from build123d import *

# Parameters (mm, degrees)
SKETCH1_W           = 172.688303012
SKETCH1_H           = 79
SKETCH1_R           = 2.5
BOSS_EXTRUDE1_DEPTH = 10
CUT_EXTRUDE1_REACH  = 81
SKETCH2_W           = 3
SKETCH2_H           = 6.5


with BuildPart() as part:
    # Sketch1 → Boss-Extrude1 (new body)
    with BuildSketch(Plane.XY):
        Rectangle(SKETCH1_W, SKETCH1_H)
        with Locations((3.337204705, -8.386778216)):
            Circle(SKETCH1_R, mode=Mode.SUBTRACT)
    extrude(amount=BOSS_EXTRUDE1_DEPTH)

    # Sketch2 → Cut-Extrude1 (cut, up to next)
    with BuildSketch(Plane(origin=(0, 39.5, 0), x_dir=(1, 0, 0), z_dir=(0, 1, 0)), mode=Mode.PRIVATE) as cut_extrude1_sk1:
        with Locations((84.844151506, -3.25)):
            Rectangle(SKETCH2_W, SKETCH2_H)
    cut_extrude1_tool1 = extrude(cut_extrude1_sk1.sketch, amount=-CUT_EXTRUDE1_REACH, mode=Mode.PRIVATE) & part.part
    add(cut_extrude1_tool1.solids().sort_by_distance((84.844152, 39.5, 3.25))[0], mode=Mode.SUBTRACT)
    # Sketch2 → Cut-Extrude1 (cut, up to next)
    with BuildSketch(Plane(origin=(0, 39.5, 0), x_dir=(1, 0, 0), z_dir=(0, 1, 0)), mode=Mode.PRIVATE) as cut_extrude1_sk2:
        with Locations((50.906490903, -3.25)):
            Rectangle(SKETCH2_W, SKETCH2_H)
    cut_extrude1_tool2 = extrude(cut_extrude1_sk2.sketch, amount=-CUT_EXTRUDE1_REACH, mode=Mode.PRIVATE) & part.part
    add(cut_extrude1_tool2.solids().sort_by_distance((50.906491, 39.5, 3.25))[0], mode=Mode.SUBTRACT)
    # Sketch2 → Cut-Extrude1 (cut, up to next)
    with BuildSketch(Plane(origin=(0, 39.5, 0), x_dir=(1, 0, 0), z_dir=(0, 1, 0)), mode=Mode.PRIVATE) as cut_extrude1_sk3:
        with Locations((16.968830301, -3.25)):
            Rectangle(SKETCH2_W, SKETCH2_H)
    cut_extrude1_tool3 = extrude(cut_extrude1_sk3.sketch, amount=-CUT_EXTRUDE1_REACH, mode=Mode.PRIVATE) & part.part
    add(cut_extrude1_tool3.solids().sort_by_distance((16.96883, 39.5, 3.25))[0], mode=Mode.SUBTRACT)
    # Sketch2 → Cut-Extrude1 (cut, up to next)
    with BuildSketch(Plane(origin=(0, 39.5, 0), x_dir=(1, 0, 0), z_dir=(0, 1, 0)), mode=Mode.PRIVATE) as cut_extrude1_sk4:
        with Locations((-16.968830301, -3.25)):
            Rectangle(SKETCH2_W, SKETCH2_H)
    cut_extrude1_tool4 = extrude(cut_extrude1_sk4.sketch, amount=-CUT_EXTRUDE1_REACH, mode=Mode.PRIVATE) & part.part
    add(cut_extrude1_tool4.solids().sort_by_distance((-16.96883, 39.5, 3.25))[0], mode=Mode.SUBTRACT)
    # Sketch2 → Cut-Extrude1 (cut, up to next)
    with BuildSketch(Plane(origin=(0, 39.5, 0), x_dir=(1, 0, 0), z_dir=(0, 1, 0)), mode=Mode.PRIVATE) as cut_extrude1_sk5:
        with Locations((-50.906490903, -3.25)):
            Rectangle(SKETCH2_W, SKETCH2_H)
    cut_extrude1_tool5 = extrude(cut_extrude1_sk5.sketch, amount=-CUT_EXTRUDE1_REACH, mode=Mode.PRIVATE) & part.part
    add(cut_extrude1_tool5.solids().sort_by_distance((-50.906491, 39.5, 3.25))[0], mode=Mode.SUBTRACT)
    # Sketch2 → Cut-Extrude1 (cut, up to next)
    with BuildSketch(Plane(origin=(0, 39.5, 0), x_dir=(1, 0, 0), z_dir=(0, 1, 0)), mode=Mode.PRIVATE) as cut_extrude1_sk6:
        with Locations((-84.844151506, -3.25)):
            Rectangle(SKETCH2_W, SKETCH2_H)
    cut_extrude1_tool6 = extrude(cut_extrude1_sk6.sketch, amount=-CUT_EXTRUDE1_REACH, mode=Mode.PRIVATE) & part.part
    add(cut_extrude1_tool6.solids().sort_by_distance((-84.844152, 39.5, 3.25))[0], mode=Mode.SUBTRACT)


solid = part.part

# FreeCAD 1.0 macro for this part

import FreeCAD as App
import Part
import Sketcher

V = App.Vector
Q = App.Units.Quantity

doc = App.newDocument("Part")
params = doc.addObject("Spreadsheet::Sheet", "Params")
for row, (alias, value) in enumerate([
    ("sketch1_diameter", "5 mm"),
    ("sketch1_height", "79 mm"),
    ("pad1_length", "10 mm"),
    ("sketch2_width", "3 mm"),
    ("sketch2_height", "6.5 mm"),
    ("sketch3_width", "3 mm"),
    ("sketch3_height", "6.5 mm"),
    ("sketch4_width", "3 mm"),
    ("sketch4_height", "6.5 mm"),
    ("sketch5_width", "3 mm"),
    ("sketch5_height", "6.5 mm"),
    ("sketch6_width", "3 mm"),
    ("sketch6_height", "6.5 mm"),
    ("sketch7_width", "3 mm"),
    ("sketch7_height", "6.5 mm"),
], start=1):
    params.set(f"A{row}", alias)
    params.set(f"B{row}", "=" + value)
    params.setAlias(f"B{row}", alias)

body = doc.addObject("PartDesign::Body", "Body")

# Sketch on XY plane
sketch1 = doc.addObject("Sketcher::SketchObject", "Sketch")
body.addObject(sketch1)
sketch1.AttachmentSupport = (doc.XY_Plane, [""])
sketch1.MapMode = "FlatFace"
sketch1.addGeometry([
    Part.LineSegment(V(-86.3, 39.5, 0), V(-86.3, -39.5, 0)),  # 0
    Part.LineSegment(V(-86.3, -39.5, 0), V(86.3, -39.5, 0)),  # 1
    Part.LineSegment(V(86.3, -39.5, 0), V(86.3, 39.5, 0)),  # 2
    Part.LineSegment(V(86.3, 39.5, 0), V(-86.3, 39.5, 0)),  # 3
    Part.Circle(V(3.3, -8.4, 0), V(0, 0, 1), 2.5),  # 4
], False)
sketch1.addConstraint([
    Sketcher.Constraint("Coincident", 0, 2, 1, 1),
    Sketcher.Constraint("Coincident", 1, 2, 2, 1),
    Sketcher.Constraint("Coincident", 2, 2, 3, 1),
    Sketcher.Constraint("Coincident", 3, 2, 0, 1),
    Sketcher.Constraint("Vertical", 0),
    Sketcher.Constraint("Horizontal", 1),
    Sketcher.Constraint("Vertical", 2),
    Sketcher.Constraint("Horizontal", 3),
    Sketcher.Constraint("Symmetric", 0, 2, 2, 2, -1, 1),
    Sketcher.Constraint("Diameter", 4, Q("5 mm")),
    Sketcher.Constraint("DistanceY", 0, 2, 0, 1, Q("79 mm")),
    Sketcher.Constraint("DistanceX", 1, 1, 1, 2, Q("172.688303 mm")),
    Sketcher.Constraint("DistanceY", 4, 3, -1, 1, Q("8.386778 mm")),
    Sketcher.Constraint("DistanceX", -1, 1, 4, 3, Q("3.337205 mm")),
])
sketch1.setExpression("Constraints[9]", "Params.sketch1_diameter")
sketch1.setExpression("Constraints[10]", "Params.sketch1_height")
pad1 = doc.addObject("PartDesign::Pad", "Pad")
body.addObject(pad1)
pad1.Profile = sketch1
pad1.setExpression("Length", "Params.pad1_length")

# Sketch on XZ plane
sketch2 = doc.addObject("Sketcher::SketchObject", "Sketch001")
body.addObject(sketch2)
sketch2.AttachmentSupport = (doc.XZ_Plane, [""])
sketch2.MapMode = "FlatFace"
sketch2.AttachmentOffset = App.Placement(V(0, 0, -39.5), App.Rotation())
sketch2.addGeometry([
    Part.LineSegment(V(83.3, 0, 0), V(83.3, 6.5, 0)),
    Part.LineSegment(V(83.3, 6.5, 0), V(86.3, 6.5, 0)),
    Part.LineSegment(V(86.3, 6.5, 0), V(86.3, 0, 0)),
    Part.LineSegment(V(86.3, 0, 0), V(83.3, 0, 0)),
], False)
sketch2.addConstraint([
    Sketcher.Constraint("Coincident", 0, 2, 1, 1),
    Sketcher.Constraint("Coincident", 1, 2, 2, 1),
    Sketcher.Constraint("Coincident", 2, 2, 3, 1),
    Sketcher.Constraint("Coincident", 3, 2, 0, 1),
    Sketcher.Constraint("Vertical", 0),
    Sketcher.Constraint("Horizontal", 1),
    Sketcher.Constraint("Vertical", 2),
    Sketcher.Constraint("Horizontal", 3),
    Sketcher.Constraint("PointOnObject", 2, 2, -1),
    Sketcher.Constraint("DistanceX", 1, 1, 1, 2, Q("3 mm")),
    Sketcher.Constraint("DistanceY", 0, 1, 0, 2, Q("6.5 mm")),
    Sketcher.Constraint("DistanceX", -1, 1, 0, 2, Q("83.344152 mm")),
])
sketch2.setExpression("Constraints[9]", "Params.sketch2_width")
sketch2.setExpression("Constraints[10]", "Params.sketch2_height")
pocket1 = doc.addObject("PartDesign::Pocket", "Pocket")
body.addObject(pocket1)
pocket1.Profile = sketch2
pocket1.Type = "UpToFirst"
pocket1.Reversed = True

# Sketch on XZ plane
sketch3 = doc.addObject("Sketcher::SketchObject", "Sketch002")
body.addObject(sketch3)
sketch3.AttachmentSupport = (doc.XZ_Plane, [""])
sketch3.MapMode = "FlatFace"
sketch3.AttachmentOffset = App.Placement(V(0, 0, -39.5), App.Rotation())
sketch3.addGeometry([
    Part.LineSegment(V(49.4, 0, 0), V(49.4, 6.5, 0)),
    Part.LineSegment(V(49.4, 6.5, 0), V(52.4, 6.5, 0)),
    Part.LineSegment(V(52.4, 6.5, 0), V(52.4, 0, 0)),
    Part.LineSegment(V(52.4, 0, 0), V(49.4, 0, 0)),
], False)
sketch3.addConstraint([
    Sketcher.Constraint("Coincident", 0, 2, 1, 1),
    Sketcher.Constraint("Coincident", 1, 2, 2, 1),
    Sketcher.Constraint("Coincident", 2, 2, 3, 1),
    Sketcher.Constraint("Coincident", 3, 2, 0, 1),
    Sketcher.Constraint("Vertical", 0),
    Sketcher.Constraint("Horizontal", 1),
    Sketcher.Constraint("Vertical", 2),
    Sketcher.Constraint("Horizontal", 3),
    Sketcher.Constraint("PointOnObject", 2, 2, -1),
    Sketcher.Constraint("DistanceX", 1, 1, 1, 2, Q("3 mm")),
    Sketcher.Constraint("DistanceY", 0, 1, 0, 2, Q("6.5 mm")),
    Sketcher.Constraint("DistanceX", -1, 1, 0, 2, Q("49.406491 mm")),
])
sketch3.setExpression("Constraints[9]", "Params.sketch3_width")
sketch3.setExpression("Constraints[10]", "Params.sketch3_height")
pocket2 = doc.addObject("PartDesign::Pocket", "Pocket001")
body.addObject(pocket2)
pocket2.Profile = sketch3
pocket2.Type = "UpToFirst"
pocket2.Reversed = True

# Sketch on XZ plane
sketch4 = doc.addObject("Sketcher::SketchObject", "Sketch003")
body.addObject(sketch4)
sketch4.AttachmentSupport = (doc.XZ_Plane, [""])
sketch4.MapMode = "FlatFace"
sketch4.AttachmentOffset = App.Placement(V(0, 0, -39.5), App.Rotation())
sketch4.addGeometry([
    Part.LineSegment(V(15.5, 0, 0), V(15.5, 6.5, 0)),
    Part.LineSegment(V(15.5, 6.5, 0), V(18.5, 6.5, 0)),
    Part.LineSegment(V(18.5, 6.5, 0), V(18.5, 0, 0)),
    Part.LineSegment(V(18.5, 0, 0), V(15.5, 0, 0)),
], False)
sketch4.addConstraint([
    Sketcher.Constraint("Coincident", 0, 2, 1, 1),
    Sketcher.Constraint("Coincident", 1, 2, 2, 1),
    Sketcher.Constraint("Coincident", 2, 2, 3, 1),
    Sketcher.Constraint("Coincident", 3, 2, 0, 1),
    Sketcher.Constraint("Vertical", 0),
    Sketcher.Constraint("Horizontal", 1),
    Sketcher.Constraint("Vertical", 2),
    Sketcher.Constraint("Horizontal", 3),
    Sketcher.Constraint("PointOnObject", 2, 2, -1),
    Sketcher.Constraint("DistanceX", 1, 1, 1, 2, Q("3 mm")),
    Sketcher.Constraint("DistanceY", 0, 1, 0, 2, Q("6.5 mm")),
    Sketcher.Constraint("DistanceX", -1, 1, 0, 2, Q("15.46883 mm")),
])
sketch4.setExpression("Constraints[9]", "Params.sketch4_width")
sketch4.setExpression("Constraints[10]", "Params.sketch4_height")
pocket3 = doc.addObject("PartDesign::Pocket", "Pocket002")
body.addObject(pocket3)
pocket3.Profile = sketch4
pocket3.Type = "UpToFirst"
pocket3.Reversed = True

# Sketch on XZ plane
sketch5 = doc.addObject("Sketcher::SketchObject", "Sketch004")
body.addObject(sketch5)
sketch5.AttachmentSupport = (doc.XZ_Plane, [""])
sketch5.MapMode = "FlatFace"
sketch5.AttachmentOffset = App.Placement(V(0, 0, -39.5), App.Rotation())
sketch5.addGeometry([
    Part.LineSegment(V(-18.5, 0, 0), V(-18.5, 6.5, 0)),
    Part.LineSegment(V(-18.5, 6.5, 0), V(-15.5, 6.5, 0)),
    Part.LineSegment(V(-15.5, 6.5, 0), V(-15.5, 0, 0)),
    Part.LineSegment(V(-15.5, 0, 0), V(-18.5, 0, 0)),
], False)
sketch5.addConstraint([
    Sketcher.Constraint("Coincident", 0, 2, 1, 1),
    Sketcher.Constraint("Coincident", 1, 2, 2, 1),
    Sketcher.Constraint("Coincident", 2, 2, 3, 1),
    Sketcher.Constraint("Coincident", 3, 2, 0, 1),
    Sketcher.Constraint("Vertical", 0),
    Sketcher.Constraint("Horizontal", 1),
    Sketcher.Constraint("Vertical", 2),
    Sketcher.Constraint("Horizontal", 3),
    Sketcher.Constraint("PointOnObject", 2, 2, -1),
    Sketcher.Constraint("DistanceX", 1, 1, 1, 2, Q("3 mm")),
    Sketcher.Constraint("DistanceY", 0, 1, 0, 2, Q("6.5 mm")),
    Sketcher.Constraint("DistanceX", 0, 2, -1, 1, Q("18.46883 mm")),
])
sketch5.setExpression("Constraints[9]", "Params.sketch5_width")
sketch5.setExpression("Constraints[10]", "Params.sketch5_height")
pocket4 = doc.addObject("PartDesign::Pocket", "Pocket003")
body.addObject(pocket4)
pocket4.Profile = sketch5
pocket4.Type = "UpToFirst"
pocket4.Reversed = True

# Sketch on XZ plane
sketch6 = doc.addObject("Sketcher::SketchObject", "Sketch005")
body.addObject(sketch6)
sketch6.AttachmentSupport = (doc.XZ_Plane, [""])
sketch6.MapMode = "FlatFace"
sketch6.AttachmentOffset = App.Placement(V(0, 0, -39.5), App.Rotation())
sketch6.addGeometry([
    Part.LineSegment(V(-52.4, 0, 0), V(-52.4, 6.5, 0)),
    Part.LineSegment(V(-52.4, 6.5, 0), V(-49.4, 6.5, 0)),
    Part.LineSegment(V(-49.4, 6.5, 0), V(-49.4, 0, 0)),
    Part.LineSegment(V(-49.4, 0, 0), V(-52.4, 0, 0)),
], False)
sketch6.addConstraint([
    Sketcher.Constraint("Coincident", 0, 2, 1, 1),
    Sketcher.Constraint("Coincident", 1, 2, 2, 1),
    Sketcher.Constraint("Coincident", 2, 2, 3, 1),
    Sketcher.Constraint("Coincident", 3, 2, 0, 1),
    Sketcher.Constraint("Vertical", 0),
    Sketcher.Constraint("Horizontal", 1),
    Sketcher.Constraint("Vertical", 2),
    Sketcher.Constraint("Horizontal", 3),
    Sketcher.Constraint("PointOnObject", 2, 2, -1),
    Sketcher.Constraint("DistanceX", 1, 1, 1, 2, Q("3 mm")),
    Sketcher.Constraint("DistanceY", 0, 1, 0, 2, Q("6.5 mm")),
    Sketcher.Constraint("DistanceX", 0, 2, -1, 1, Q("52.406491 mm")),
])
sketch6.setExpression("Constraints[9]", "Params.sketch6_width")
sketch6.setExpression("Constraints[10]", "Params.sketch6_height")
pocket5 = doc.addObject("PartDesign::Pocket", "Pocket004")
body.addObject(pocket5)
pocket5.Profile = sketch6
pocket5.Type = "UpToFirst"
pocket5.Reversed = True

# Sketch on XZ plane
sketch7 = doc.addObject("Sketcher::SketchObject", "Sketch006")
body.addObject(sketch7)
sketch7.AttachmentSupport = (doc.XZ_Plane, [""])
sketch7.MapMode = "FlatFace"
sketch7.AttachmentOffset = App.Placement(V(0, 0, -39.5), App.Rotation())
sketch7.addGeometry([
    Part.LineSegment(V(-86.3, 0, 0), V(-86.3, 6.5, 0)),
    Part.LineSegment(V(-86.3, 6.5, 0), V(-83.3, 6.5, 0)),
    Part.LineSegment(V(-83.3, 6.5, 0), V(-83.3, 0, 0)),
    Part.LineSegment(V(-83.3, 0, 0), V(-86.3, 0, 0)),
], False)
sketch7.addConstraint([
    Sketcher.Constraint("Coincident", 0, 2, 1, 1),
    Sketcher.Constraint("Coincident", 1, 2, 2, 1),
    Sketcher.Constraint("Coincident", 2, 2, 3, 1),
    Sketcher.Constraint("Coincident", 3, 2, 0, 1),
    Sketcher.Constraint("Vertical", 0),
    Sketcher.Constraint("Horizontal", 1),
    Sketcher.Constraint("Vertical", 2),
    Sketcher.Constraint("Horizontal", 3),
    Sketcher.Constraint("PointOnObject", 2, 2, -1),
    Sketcher.Constraint("DistanceX", 1, 1, 1, 2, Q("3 mm")),
    Sketcher.Constraint("DistanceY", 0, 1, 0, 2, Q("6.5 mm")),
    Sketcher.Constraint("DistanceX", 0, 2, -1, 1, Q("86.344152 mm")),
])
sketch7.setExpression("Constraints[9]", "Params.sketch7_width")
sketch7.setExpression("Constraints[10]", "Params.sketch7_height")
pocket6 = doc.addObject("PartDesign::Pocket", "Pocket005")
body.addObject(pocket6)
pocket6.Profile = sketch7
pocket6.Type = "UpToFirst"
pocket6.Reversed = True

doc.recompute()
